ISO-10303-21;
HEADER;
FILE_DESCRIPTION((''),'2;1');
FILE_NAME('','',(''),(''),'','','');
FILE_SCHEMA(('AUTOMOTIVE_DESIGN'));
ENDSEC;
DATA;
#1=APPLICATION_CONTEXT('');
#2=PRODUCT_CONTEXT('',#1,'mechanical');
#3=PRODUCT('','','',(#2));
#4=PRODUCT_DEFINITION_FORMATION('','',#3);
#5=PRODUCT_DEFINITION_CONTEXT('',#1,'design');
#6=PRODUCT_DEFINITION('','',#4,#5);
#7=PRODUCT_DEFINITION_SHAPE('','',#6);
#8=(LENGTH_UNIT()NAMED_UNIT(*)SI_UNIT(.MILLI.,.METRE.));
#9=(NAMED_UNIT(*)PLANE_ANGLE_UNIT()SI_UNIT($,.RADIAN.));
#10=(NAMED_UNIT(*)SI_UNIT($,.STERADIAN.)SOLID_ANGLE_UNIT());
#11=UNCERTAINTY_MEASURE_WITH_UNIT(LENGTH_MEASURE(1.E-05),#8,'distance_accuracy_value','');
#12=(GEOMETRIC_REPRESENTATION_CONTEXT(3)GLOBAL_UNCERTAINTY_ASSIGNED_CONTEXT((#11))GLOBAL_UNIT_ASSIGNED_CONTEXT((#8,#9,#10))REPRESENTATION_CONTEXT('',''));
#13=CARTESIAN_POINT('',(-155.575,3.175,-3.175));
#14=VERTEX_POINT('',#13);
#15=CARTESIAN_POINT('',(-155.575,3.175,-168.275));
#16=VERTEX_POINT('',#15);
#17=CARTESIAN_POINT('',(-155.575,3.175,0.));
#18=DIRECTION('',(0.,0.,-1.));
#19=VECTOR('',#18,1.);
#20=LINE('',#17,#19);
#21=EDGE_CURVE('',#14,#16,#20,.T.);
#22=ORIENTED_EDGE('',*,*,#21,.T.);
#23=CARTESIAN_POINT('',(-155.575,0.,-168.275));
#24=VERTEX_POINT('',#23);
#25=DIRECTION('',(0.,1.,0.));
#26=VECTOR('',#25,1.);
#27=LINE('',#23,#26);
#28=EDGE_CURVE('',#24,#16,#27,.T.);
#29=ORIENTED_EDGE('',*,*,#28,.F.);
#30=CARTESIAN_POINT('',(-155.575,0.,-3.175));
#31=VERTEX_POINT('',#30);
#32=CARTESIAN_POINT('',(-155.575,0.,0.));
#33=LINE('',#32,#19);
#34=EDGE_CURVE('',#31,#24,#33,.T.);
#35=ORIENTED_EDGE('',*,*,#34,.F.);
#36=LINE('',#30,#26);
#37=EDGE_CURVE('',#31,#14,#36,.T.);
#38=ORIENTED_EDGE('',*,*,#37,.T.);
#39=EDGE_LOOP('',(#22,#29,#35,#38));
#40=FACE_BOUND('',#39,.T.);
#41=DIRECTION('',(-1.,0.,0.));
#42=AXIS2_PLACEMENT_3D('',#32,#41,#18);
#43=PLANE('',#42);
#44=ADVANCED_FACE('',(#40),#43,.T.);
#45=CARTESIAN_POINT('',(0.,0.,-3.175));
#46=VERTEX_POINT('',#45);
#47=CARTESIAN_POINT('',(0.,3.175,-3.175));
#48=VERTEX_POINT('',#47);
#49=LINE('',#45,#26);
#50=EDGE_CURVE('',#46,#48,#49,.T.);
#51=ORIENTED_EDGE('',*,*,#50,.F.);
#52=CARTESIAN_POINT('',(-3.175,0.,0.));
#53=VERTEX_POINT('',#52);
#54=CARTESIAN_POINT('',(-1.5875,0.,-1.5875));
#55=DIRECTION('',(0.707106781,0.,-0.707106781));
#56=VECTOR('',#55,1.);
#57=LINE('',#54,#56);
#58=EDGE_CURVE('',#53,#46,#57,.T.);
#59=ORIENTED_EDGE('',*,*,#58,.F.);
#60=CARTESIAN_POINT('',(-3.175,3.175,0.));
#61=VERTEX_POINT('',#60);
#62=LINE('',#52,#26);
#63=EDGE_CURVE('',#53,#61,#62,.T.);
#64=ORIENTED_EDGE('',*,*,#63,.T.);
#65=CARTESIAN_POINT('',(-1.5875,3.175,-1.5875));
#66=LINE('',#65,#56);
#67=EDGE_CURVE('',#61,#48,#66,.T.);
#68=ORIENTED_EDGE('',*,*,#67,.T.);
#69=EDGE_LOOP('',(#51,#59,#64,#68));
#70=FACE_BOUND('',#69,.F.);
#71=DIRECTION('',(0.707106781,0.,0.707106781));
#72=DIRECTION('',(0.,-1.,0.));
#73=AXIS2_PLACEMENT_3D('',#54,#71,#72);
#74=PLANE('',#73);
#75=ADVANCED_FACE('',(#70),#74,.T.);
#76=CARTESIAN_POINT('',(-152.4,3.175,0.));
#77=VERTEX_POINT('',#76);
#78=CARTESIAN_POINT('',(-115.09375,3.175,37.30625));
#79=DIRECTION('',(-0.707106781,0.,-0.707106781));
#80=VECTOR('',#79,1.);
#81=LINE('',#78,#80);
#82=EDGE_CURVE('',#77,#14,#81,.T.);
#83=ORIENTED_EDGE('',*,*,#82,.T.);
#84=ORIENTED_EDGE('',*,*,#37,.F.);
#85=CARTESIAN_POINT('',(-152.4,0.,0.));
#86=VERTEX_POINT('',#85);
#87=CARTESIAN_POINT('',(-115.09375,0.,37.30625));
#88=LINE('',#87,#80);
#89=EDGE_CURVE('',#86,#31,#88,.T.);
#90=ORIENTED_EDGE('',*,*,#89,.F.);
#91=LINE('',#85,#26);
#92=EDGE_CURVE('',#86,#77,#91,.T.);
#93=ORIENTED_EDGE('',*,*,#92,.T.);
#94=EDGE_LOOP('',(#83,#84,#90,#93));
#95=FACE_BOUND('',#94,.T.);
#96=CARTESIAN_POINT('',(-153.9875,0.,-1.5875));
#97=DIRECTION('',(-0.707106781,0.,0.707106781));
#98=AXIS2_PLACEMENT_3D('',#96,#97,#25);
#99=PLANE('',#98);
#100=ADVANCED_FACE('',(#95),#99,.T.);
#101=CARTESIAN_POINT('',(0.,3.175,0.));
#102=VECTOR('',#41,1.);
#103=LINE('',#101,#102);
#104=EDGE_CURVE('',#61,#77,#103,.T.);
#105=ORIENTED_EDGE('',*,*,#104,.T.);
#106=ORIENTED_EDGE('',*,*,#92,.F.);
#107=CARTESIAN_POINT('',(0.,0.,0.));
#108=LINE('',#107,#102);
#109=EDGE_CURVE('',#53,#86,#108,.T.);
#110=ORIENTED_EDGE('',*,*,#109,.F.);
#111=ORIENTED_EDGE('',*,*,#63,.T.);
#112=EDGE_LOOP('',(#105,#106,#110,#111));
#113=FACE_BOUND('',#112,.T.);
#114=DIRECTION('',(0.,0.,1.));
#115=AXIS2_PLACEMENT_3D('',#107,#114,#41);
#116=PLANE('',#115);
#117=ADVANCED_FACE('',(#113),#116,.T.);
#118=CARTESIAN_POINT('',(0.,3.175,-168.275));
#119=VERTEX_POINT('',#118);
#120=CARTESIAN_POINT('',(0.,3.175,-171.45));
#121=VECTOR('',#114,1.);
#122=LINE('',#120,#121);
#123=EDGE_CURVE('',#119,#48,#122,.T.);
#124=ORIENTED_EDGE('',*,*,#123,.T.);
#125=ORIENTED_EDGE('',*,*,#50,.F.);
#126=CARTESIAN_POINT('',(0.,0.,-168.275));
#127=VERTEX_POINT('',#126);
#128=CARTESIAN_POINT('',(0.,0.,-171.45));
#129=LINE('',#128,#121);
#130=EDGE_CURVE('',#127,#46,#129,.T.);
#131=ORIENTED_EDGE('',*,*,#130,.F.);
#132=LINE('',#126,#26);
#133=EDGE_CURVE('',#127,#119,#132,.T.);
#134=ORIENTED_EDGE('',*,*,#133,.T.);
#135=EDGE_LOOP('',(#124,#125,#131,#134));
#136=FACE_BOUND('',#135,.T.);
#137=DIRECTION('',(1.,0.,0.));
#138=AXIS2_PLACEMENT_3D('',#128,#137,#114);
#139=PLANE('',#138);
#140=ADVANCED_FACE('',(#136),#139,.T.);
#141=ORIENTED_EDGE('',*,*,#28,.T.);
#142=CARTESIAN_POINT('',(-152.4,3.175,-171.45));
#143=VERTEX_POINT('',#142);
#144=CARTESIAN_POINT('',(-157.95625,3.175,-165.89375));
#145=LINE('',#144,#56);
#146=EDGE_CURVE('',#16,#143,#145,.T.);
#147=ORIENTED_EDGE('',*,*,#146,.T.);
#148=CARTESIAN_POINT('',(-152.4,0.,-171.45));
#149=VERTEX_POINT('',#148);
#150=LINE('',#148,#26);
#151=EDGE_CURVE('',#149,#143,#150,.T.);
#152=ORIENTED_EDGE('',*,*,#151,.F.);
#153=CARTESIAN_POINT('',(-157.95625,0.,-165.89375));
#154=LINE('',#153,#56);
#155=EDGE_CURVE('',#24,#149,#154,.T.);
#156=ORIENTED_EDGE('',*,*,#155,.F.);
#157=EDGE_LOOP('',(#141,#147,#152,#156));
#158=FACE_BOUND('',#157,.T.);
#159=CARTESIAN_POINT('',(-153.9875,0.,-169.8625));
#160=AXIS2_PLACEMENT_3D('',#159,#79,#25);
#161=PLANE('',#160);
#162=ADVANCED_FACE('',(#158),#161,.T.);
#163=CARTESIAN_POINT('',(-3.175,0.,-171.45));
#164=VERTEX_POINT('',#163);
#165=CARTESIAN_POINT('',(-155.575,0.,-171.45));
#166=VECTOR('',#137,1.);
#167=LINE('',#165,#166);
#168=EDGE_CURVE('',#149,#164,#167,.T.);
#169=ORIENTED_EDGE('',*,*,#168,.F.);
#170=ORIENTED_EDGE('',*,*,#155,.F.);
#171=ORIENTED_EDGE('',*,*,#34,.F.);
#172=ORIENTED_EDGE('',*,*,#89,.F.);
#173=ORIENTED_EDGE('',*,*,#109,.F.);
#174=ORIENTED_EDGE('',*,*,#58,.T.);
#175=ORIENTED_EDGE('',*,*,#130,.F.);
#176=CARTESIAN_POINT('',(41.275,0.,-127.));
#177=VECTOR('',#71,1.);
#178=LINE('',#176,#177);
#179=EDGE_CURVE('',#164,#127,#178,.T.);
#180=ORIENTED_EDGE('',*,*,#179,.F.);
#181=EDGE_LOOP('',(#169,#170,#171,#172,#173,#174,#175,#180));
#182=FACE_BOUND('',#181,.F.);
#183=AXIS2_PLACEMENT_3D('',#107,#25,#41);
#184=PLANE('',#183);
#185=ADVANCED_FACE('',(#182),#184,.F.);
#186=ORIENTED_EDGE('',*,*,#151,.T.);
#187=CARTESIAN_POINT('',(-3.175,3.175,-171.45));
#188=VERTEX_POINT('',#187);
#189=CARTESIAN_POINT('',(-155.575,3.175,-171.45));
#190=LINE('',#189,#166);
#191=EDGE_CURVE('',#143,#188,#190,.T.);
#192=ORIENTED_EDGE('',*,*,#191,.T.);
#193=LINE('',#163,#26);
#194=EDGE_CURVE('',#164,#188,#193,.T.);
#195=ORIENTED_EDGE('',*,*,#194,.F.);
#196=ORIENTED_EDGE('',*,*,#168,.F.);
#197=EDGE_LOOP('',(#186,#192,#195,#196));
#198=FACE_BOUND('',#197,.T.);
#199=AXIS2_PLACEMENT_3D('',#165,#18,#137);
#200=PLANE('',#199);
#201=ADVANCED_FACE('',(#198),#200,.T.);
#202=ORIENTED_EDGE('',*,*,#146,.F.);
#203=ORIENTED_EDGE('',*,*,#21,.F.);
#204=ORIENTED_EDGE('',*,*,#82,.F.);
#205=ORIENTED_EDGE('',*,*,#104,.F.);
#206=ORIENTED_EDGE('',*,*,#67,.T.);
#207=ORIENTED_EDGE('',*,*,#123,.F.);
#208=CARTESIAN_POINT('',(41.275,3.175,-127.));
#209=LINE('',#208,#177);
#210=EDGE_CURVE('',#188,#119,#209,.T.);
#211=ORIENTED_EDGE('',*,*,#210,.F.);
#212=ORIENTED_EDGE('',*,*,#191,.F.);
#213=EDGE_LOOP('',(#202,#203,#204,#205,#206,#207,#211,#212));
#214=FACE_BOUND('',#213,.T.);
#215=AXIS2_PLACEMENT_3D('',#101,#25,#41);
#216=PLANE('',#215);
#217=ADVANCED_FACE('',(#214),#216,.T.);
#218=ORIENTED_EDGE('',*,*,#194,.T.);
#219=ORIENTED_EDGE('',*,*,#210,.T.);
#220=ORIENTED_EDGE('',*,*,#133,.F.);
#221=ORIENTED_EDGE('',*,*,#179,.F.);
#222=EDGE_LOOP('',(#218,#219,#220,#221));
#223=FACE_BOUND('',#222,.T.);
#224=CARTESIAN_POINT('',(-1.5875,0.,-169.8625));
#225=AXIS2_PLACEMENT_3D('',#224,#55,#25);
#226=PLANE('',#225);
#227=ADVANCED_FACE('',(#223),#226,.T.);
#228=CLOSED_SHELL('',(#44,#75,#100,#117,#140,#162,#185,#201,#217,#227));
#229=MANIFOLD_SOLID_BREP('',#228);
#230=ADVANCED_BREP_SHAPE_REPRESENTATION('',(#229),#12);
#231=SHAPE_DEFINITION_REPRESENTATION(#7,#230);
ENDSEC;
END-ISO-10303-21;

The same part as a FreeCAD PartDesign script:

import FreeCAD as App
import Part
import Sketcher

V = App.Vector
Q = App.Units.Quantity


def edges_at(feature, points):
    """Names of the edges that pass closest to the given points."""
    edges = feature.Shape.Edges
    near = lambda p: min(range(len(edges)), key=lambda i: edges[i].distToShape(Part.Vertex(*p))[0])
    return sorted({f"Edge{near(p) + 1}" for p in points})

doc = App.newDocument("Part")
params = doc.addObject("Spreadsheet::Sheet", "Params")
for row, (alias, value) in enumerate([
    ("sketch1_height", "6.75 in"),
    ("sketch1_width", "6.125 in"),
    ("pad1_length", "0.125 in"),
    ("chamfer_size", "0.125 in"),
], start=1):
    params.set(f"A{row}", alias)
    params.set(f"B{row}", "=" + value)
    params.setAlias(f"B{row}", alias)

body = doc.addObject("PartDesign::Body", "Body")

# Sketch on XZ plane
sketch1 = doc.addObject("Sketcher::SketchObject", "Sketch")
body.addObject(sketch1)
sketch1.AttachmentSupport = (doc.XZ_Plane, [""])
sketch1.MapMode = "FlatFace"
sketch1.addGeometry([
    Part.LineSegment(V(-156, 0, 0), V(0, 0, 0)),
    Part.LineSegment(V(0, 0, 0), V(0, -171, 0)),
    Part.LineSegment(V(0, -171, 0), V(-156, -171, 0)),
    Part.LineSegment(V(-156, -171, 0), V(-156, 0, 0)),
], False)
sketch1.addConstraint([
    Sketcher.Constraint("Coincident", 0, 2, 1, 1),
    Sketcher.Constraint("Coincident", 1, 2, 2, 1),
    Sketcher.Constraint("Coincident", 2, 2, 3, 1),
    Sketcher.Constraint("Coincident", 3, 2, 0, 1),
    Sketcher.Constraint("Horizontal", 0),
    Sketcher.Constraint("Vertical", 1),
    Sketcher.Constraint("Horizontal", 2),
    Sketcher.Constraint("Vertical", 3),
    Sketcher.Constraint("Coincident", 0, 2, -1, 1),
    Sketcher.Constraint("DistanceY", 1, 2, 1, 1, Q("6.75 in")),
    Sketcher.Constraint("DistanceX", 0, 1, 0, 2, Q("6.125 in")),
])
sketch1.setExpression("Constraints[9]", "Params.sketch1_height")
sketch1.setExpression("Constraints[10]", "Params.sketch1_width")
pad1 = doc.addObject("PartDesign::Pad", "Pad")
body.addObject(pad1)
pad1.Profile = sketch1
pad1.setExpression("Length", "Params.pad1_length")
pad1.Reversed = True
doc.recompute()

chamfer = doc.addObject("PartDesign::Chamfer", "Chamfer")
body.addObject(chamfer)
chamfer.Base = (pad1, edges_at(pad1, [
    (0, 1.587, 0),
    (-155.575, 1.587, 0),
    (-155.575, 1.587, -171.45),
    (0, 1.587, -171.45),
]))
chamfer.setExpression("Size", "Params.chamfer_size")

doc.recompute()
